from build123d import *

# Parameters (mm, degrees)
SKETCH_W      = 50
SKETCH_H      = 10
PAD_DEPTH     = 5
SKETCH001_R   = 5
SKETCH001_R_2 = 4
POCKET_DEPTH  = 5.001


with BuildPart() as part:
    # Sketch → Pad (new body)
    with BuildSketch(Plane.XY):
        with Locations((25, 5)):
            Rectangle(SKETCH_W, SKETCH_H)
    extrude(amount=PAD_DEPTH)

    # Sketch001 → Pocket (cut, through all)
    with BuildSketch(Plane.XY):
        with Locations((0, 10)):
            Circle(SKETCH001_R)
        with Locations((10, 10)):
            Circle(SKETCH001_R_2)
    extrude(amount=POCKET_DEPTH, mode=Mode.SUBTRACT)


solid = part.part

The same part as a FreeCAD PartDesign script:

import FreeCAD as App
import Part
import Sketcher

V = App.Vector
Q = App.Units.Quantity

doc = App.newDocument("Part")
body = doc.addObject("PartDesign::Body", "Body")

# Sketch on XY plane
sketch1 = body.newObject("Sketcher::SketchObject", "Sketch")
sketch1.AttachmentSupport = (doc.getObject("XY_Plane"), [""])
sketch1.MapMode = "FlatFace"
sketch1.addGeometry(Part.LineSegment(V(0, 10, 0), V(0, 0, 0)), False)
sketch1.addGeometry(Part.LineSegment(V(0, 0, 0), V(50, 0, 0)), False)
sketch1.addGeometry(Part.LineSegment(V(50, 0, 0), V(50, 10, 0)), False)
sketch1.addGeometry(Part.LineSegment(V(50, 10, 0), V(0, 10, 0)), False)
sketch1.addConstraint(Sketcher.Constraint("Coincident", 0, 2, 1, 1))
sketch1.addConstraint(Sketcher.Constraint("Coincident", 1, 2, 2, 1))
sketch1.addConstraint(Sketcher.Constraint("Coincident", 2, 2, 3, 1))
sketch1.addConstraint(Sketcher.Constraint("Coincident", 3, 2, 0, 1))
sketch1.addConstraint(Sketcher.Constraint("Vertical", 0))
sketch1.addConstraint(Sketcher.Constraint("Horizontal", 1))
sketch1.addConstraint(Sketcher.Constraint("Vertical", 2))
sketch1.addConstraint(Sketcher.Constraint("Horizontal", 3))
sketch1.addConstraint(Sketcher.Constraint("Coincident", 0, 2, -1, 1))
sketch1.addConstraint(Sketcher.Constraint("DistanceX", 1, 1, 1, 2, Q("50 mm")))
sketch1.addConstraint(Sketcher.Constraint("DistanceY", 0, 2, 0, 1, Q("10 mm")))
pad1 = body.newObject("PartDesign::Pad", "Pad")
pad1.Profile = sketch1
pad1.Length = 5

# Sketch on XY plane
sketch2 = body.newObject("Sketcher::SketchObject", "Sketch001")
sketch2.AttachmentSupport = (doc.getObject("XY_Plane"), [""])
sketch2.MapMode = "FlatFace"
sketch2.addGeometry(Part.Circle(V(0, 10, 0), V(0, 0, 1), 5), False)
sketch2.addGeometry(Part.Circle(V(10, 10, 0), V(0, 0, 1), 4), False)
sketch2.addConstraint(Sketcher.Constraint("PointOnObject", 0, 3, -2))
sketch2.addConstraint(Sketcher.Constraint("Horizontal", 0, 3, 1, 3))
sketch2.addConstraint(Sketcher.Constraint("Diameter", 0, Q("10 mm")))
sketch2.addConstraint(Sketcher.Constraint("Diameter", 1, Q("8 mm")))
sketch2.addConstraint(Sketcher.Constraint("DistanceY", -1, 1, 0, 3, Q("10 mm")))
sketch2.addConstraint(Sketcher.Constraint("DistanceX", -1, 1, 1, 3, Q("10 mm")))
pocket1 = body.newObject("PartDesign::Pocket", "Pocket")
pocket1.Profile = sketch2
pocket1.Type = "ThroughAll"
pocket1.Reversed = True

doc.recompute()
